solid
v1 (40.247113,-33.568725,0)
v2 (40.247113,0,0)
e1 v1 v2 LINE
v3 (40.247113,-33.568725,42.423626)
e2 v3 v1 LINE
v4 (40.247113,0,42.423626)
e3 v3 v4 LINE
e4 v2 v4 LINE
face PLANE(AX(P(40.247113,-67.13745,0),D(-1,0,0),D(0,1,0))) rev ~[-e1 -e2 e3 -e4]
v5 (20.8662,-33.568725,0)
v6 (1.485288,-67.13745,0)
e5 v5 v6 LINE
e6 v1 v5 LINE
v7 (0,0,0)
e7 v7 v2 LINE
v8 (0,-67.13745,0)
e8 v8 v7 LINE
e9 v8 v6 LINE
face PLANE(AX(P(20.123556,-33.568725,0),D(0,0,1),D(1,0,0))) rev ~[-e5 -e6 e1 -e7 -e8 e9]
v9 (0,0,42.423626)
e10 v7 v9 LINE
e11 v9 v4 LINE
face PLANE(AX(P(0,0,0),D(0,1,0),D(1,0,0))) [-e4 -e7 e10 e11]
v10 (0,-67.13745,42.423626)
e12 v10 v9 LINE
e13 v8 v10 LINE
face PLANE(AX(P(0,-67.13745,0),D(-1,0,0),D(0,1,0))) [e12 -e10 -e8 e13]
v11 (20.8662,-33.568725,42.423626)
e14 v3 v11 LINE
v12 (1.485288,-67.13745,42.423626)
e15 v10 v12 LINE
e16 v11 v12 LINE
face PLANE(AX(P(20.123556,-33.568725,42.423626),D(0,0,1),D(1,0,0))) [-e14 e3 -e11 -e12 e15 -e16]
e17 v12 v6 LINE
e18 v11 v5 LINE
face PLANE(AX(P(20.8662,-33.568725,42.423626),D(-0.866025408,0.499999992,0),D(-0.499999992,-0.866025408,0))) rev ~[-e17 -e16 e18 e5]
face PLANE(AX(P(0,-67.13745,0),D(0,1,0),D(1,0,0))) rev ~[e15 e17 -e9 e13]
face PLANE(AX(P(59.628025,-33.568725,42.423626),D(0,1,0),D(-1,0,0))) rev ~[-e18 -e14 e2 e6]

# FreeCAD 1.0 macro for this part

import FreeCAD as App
import Part
import Sketcher

V = App.Vector
Q = App.Units.Quantity

doc = App.newDocument("Part")
body = doc.addObject("PartDesign::Body", "Body")

# Sketch on XY plane
sketch1 = body.newObject("Sketcher::SketchObject", "Sketch")
sketch1.AttachmentSupport = (doc.getObject("XY_Plane"), [""])
sketch1.MapMode = "FlatFace"
sketch1.addGeometry([
    Part.LineSegment(V(0, 0, 0), V(0, -67.13745, 0)),
    Part.LineSegment(V(0, -67.13745, 0), V(40.247113, -67.13745, 0)),
    Part.LineSegment(V(40.247113, -67.13745, 0), V(40.247113, 0, 0)),
    Part.LineSegment(V(40.247113, 0, 0), V(0, 0, 0)),
], False)
sketch1.addConstraint([
    Sketcher.Constraint("Coincident", 0, 2, 1, 1),
    Sketcher.Constraint("Coincident", 1, 2, 2, 1),
    Sketcher.Constraint("Coincident", 2, 2, 3, 1),
    Sketcher.Constraint("Coincident", 3, 2, 0, 1),
    Sketcher.Constraint("Vertical", 0),
    Sketcher.Constraint("Horizontal", 1),
    Sketcher.Constraint("Vertical", 2),
    Sketcher.Constraint("Horizontal", 3),
    Sketcher.Constraint("Coincident", 3, 2, -1, 1),
    Sketcher.Constraint("DistanceY", 0, 2, 0, 1, 67.13745),
    Sketcher.Constraint("DistanceX", 1, 1, 1, 2, 40.247113),
])
pad1 = body.newObject("PartDesign::Pad", "Pad")
pad1.Profile = sketch1
pad1.Length = 42.423626

# Sketch on XY plane
sketch2 = body.newObject("Sketcher::SketchObject", "Sketch001")
sketch2.AttachmentSupport = (doc.getObject("XY_Plane"), [""])
sketch2.MapMode = "FlatFace"
sketch2.AttachmentOffset = App.Placement(V(0, 0, 42.423626), App.Rotation())
sketch2.addGeometry([
    Part.LineSegment(V(59.628025, -33.568725, 0), V(20.8662, -33.568725, 0)),  # 0
    Part.LineSegment(V(20.8662, -33.568725, 0), V(1.485288, -67.13745, 0)),  # 1
    Part.LineSegment(V(1.485288, -67.13745, 0), V(20.8662, -100.706175, 0)),  # 2
    Part.LineSegment(V(20.8662, -100.706175, 0), V(59.628025, -100.706175, 0)),  # 3
    Part.LineSegment(V(59.628025, -100.706175, 0), V(79.008937, -67.13745, 0)),  # 4
    Part.LineSegment(V(79.008937, -67.13745, 0), V(59.628025, -33.568725, 0)),  # 5
], False)
sketch2.addConstraint([
    Sketcher.Constraint("Coincident", 0, 2, 1, 1),
    Sketcher.Constraint("Coincident", 1, 2, 2, 1),
    Sketcher.Constraint("Coincident", 2, 2, 3, 1),
    Sketcher.Constraint("Coincident", 3, 2, 4, 1),
    Sketcher.Constraint("Coincident", 4, 2, 5, 1),
    Sketcher.Constraint("Coincident", 5, 2, 0, 1),
    Sketcher.Constraint("Horizontal", 0),
    Sketcher.Constraint("Horizontal", 3),
    Sketcher.Constraint("Parallel", 1, 4),
    Sketcher.Constraint("Parallel", 2, 5),
    Sketcher.Constraint("Horizontal", 1, 2, 4, 2),
    Sketcher.Constraint("Vertical", 0, 2, 2, 2),
    Sketcher.Constraint("Vertical", 3, 2, 5, 2),
    Sketcher.Constraint("Angle", 1, Q("-119.999999 deg")),
    Sketcher.Constraint("DistanceX", -1, 1, 0, 2, 20.8662),
    Sketcher.Constraint("DistanceX", 0, 2, 0, 1, 38.761825),
    Sketcher.Constraint("DistanceY", 1, 2, -1, 1, 67.13745),
    Sketcher.Constraint("DistanceX", 1, 2, 0, 2, 19.380912),
])
pocket1 = body.newObject("PartDesign::Pocket", "Pocket")
pocket1.Profile = sketch2
pocket1.Length = 68.109216

doc.recompute()
